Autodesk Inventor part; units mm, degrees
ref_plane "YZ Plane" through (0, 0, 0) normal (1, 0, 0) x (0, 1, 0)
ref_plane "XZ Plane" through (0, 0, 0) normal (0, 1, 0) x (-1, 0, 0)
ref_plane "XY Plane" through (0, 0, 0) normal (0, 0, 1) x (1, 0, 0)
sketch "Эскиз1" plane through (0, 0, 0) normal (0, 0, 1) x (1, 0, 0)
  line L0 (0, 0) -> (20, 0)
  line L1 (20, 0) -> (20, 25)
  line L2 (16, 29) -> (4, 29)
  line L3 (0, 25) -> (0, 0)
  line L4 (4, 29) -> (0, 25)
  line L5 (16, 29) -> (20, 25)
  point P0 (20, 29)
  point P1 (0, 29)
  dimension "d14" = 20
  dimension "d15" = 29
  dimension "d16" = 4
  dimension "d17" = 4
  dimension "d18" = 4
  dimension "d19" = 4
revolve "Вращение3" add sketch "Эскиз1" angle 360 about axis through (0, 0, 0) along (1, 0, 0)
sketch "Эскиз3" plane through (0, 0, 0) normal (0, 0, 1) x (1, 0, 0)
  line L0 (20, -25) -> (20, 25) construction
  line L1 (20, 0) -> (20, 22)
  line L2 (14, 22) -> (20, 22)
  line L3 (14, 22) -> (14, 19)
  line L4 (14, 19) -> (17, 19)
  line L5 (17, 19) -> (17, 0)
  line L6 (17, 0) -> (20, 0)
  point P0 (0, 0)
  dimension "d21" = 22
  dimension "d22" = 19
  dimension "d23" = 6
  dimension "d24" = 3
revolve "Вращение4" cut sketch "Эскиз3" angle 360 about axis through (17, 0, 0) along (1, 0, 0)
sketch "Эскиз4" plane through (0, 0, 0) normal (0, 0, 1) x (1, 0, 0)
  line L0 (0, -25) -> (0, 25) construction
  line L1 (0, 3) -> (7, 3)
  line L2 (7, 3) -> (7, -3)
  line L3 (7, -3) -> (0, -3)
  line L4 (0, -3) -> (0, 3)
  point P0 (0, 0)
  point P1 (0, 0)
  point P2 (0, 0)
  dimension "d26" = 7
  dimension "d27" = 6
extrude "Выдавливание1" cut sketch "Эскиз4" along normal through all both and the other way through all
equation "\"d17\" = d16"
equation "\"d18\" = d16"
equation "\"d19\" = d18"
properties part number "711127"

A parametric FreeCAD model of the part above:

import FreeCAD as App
import Part
import Sketcher

V = App.Vector
Q = App.Units.Quantity

doc = App.newDocument("Part")
body = doc.addObject("PartDesign::Body", "Body")

sketch1 = doc.addObject("Sketcher::SketchObject", "Sketch")
body.addObject(sketch1)
sketch1.AttachmentSupport = (doc.XY_Plane, [""])
sketch1.MapMode = "FlatFace"
sketch1.addGeometry([
    Part.LineSegment(V(0, 25, 0), V(0, 0, 0)),
    Part.LineSegment(V(0, 0, 0), V(20, 0, 0)),
    Part.LineSegment(V(20, 0, 0), V(20, 25, 0)),
    Part.LineSegment(V(20, 25, 0), V(16, 29, 0)),
    Part.LineSegment(V(16, 29, 0), V(4, 29, 0)),
    Part.LineSegment(V(4, 29, 0), V(0, 25, 0)),
], False)
sketch1.addConstraint([
    Sketcher.Constraint("Coincident", 0, 2, 1, 1),
    Sketcher.Constraint("Coincident", 1, 2, 2, 1),
    Sketcher.Constraint("Coincident", 2, 2, 3, 1),
    Sketcher.Constraint("Coincident", 3, 2, 4, 1),
    Sketcher.Constraint("Coincident", 4, 2, 5, 1),
    Sketcher.Constraint("Coincident", 5, 2, 0, 1),
    Sketcher.Constraint("Vertical", 0),
    Sketcher.Constraint("Horizontal", 1),
    Sketcher.Constraint("Vertical", 2),
    Sketcher.Constraint("Horizontal", 4),
    Sketcher.Constraint("Coincident", 0, 2, -1, 1),
    Sketcher.Constraint("Perpendicular", 3, 5),
    Sketcher.Constraint("Horizontal", 2, 2, 5, 2),
    Sketcher.Constraint("Equal", 3, 5),
    Sketcher.Constraint("DistanceX", 1, 1, 1, 2, Q("20 mm")),
    Sketcher.Constraint("DistanceY", -1, 1, 3, 2, Q("29 mm")),
    Sketcher.Constraint("DistanceX", -1, 1, 4, 2, Q("4 mm")),
])
revolution = doc.addObject("PartDesign::Revolution", "Revolution")
body.addObject(revolution)
revolution.Profile = sketch1
revolution.ReferenceAxis = (sketch1, ["H_Axis"])
revolution.Angle = 360

sketch2 = doc.addObject("Sketcher::SketchObject", "Sketch001")
body.addObject(sketch2)
sketch2.AttachmentSupport = (doc.XY_Plane, [""])
sketch2.MapMode = "FlatFace"
sketch2.addGeometry([
    Part.LineSegment(V(17, 0, 0), V(20, 0, 0)),
    Part.LineSegment(V(20, 0, 0), V(20, 22, 0)),
    Part.LineSegment(V(20, 22, 0), V(14, 22, 0)),
    Part.LineSegment(V(14, 22, 0), V(14, 19, 0)),
    Part.LineSegment(V(14, 19, 0), V(17, 19, 0)),
    Part.LineSegment(V(17, 19, 0), V(17, 0, 0)),
], False)
sketch2.addConstraint([
    Sketcher.Constraint("Coincident", 0, 2, 1, 1),
    Sketcher.Constraint("Coincident", 1, 2, 2, 1),
    Sketcher.Constraint("Coincident", 2, 2, 3, 1),
    Sketcher.Constraint("Coincident", 3, 2, 4, 1),
    Sketcher.Constraint("Coincident", 4, 2, 5, 1),
    Sketcher.Constraint("Coincident", 5, 2, 0, 1),
    Sketcher.Constraint("Horizontal", 0),
    Sketcher.Constraint("Vertical", 1),
    Sketcher.Constraint("Horizontal", 2),
    Sketcher.Constraint("Vertical", 3),
    Sketcher.Constraint("Horizontal", 4),
    Sketcher.Constraint("Vertical", 5),
    Sketcher.Constraint("PointOnObject", 0, 2, -1),
    Sketcher.Constraint("Equal", 0, 4),
    Sketcher.Constraint("Equal", 4, 3),
    Sketcher.Constraint("DistanceX", 0, 1, 0, 2, Q("3 mm")),
    Sketcher.Constraint("DistanceY", 1, 1, 1, 2, Q("22 mm")),
    Sketcher.Constraint("DistanceX", -1, 1, 0, 2, Q("20 mm")),
])
groove = doc.addObject("PartDesign::Groove", "Groove")
body.addObject(groove)
groove.Profile = sketch2
groove.ReferenceAxis = (sketch2, ["H_Axis"])
groove.Angle = 360

sketch3 = doc.addObject("Sketcher::SketchObject", "Sketch002")
body.addObject(sketch3)
sketch3.AttachmentSupport = (doc.XY_Plane, [""])
sketch3.MapMode = "FlatFace"
sketch3.addGeometry([
    Part.LineSegment(V(7, 3, 0), V(0, 3, 0)),
    Part.LineSegment(V(0, 3, 0), V(0, -3, 0)),
    Part.LineSegment(V(0, -3, 0), V(7, -3, 0)),
    Part.LineSegment(V(7, -3, 0), V(7, 3, 0)),
], False)
sketch3.addConstraint([
    Sketcher.Constraint("Coincident", 0, 2, 1, 1),
    Sketcher.Constraint("Coincident", 1, 2, 2, 1),
    Sketcher.Constraint("Coincident", 2, 2, 3, 1),
    Sketcher.Constraint("Coincident", 3, 2, 0, 1),
    Sketcher.Constraint("Horizontal", 0),
    Sketcher.Constraint("Vertical", 1),
    Sketcher.Constraint("Horizontal", 2),
    Sketcher.Constraint("Vertical", 3),
    Sketcher.Constraint("Symmetric", 0, 2, 1, 2, -1, 1),
    Sketcher.Constraint("DistanceX", 0, 2, 0, 1, Q("7 mm")),
    Sketcher.Constraint("DistanceY", 1, 2, 1, 1, Q("6 mm")),
])
pocket1 = doc.addObject("PartDesign::Pocket", "Pocket")
body.addObject(pocket1)
pocket1.Profile = sketch3
pocket1.Type = "ThroughAll"
pocket1.Midplane = True

doc.recompute()
